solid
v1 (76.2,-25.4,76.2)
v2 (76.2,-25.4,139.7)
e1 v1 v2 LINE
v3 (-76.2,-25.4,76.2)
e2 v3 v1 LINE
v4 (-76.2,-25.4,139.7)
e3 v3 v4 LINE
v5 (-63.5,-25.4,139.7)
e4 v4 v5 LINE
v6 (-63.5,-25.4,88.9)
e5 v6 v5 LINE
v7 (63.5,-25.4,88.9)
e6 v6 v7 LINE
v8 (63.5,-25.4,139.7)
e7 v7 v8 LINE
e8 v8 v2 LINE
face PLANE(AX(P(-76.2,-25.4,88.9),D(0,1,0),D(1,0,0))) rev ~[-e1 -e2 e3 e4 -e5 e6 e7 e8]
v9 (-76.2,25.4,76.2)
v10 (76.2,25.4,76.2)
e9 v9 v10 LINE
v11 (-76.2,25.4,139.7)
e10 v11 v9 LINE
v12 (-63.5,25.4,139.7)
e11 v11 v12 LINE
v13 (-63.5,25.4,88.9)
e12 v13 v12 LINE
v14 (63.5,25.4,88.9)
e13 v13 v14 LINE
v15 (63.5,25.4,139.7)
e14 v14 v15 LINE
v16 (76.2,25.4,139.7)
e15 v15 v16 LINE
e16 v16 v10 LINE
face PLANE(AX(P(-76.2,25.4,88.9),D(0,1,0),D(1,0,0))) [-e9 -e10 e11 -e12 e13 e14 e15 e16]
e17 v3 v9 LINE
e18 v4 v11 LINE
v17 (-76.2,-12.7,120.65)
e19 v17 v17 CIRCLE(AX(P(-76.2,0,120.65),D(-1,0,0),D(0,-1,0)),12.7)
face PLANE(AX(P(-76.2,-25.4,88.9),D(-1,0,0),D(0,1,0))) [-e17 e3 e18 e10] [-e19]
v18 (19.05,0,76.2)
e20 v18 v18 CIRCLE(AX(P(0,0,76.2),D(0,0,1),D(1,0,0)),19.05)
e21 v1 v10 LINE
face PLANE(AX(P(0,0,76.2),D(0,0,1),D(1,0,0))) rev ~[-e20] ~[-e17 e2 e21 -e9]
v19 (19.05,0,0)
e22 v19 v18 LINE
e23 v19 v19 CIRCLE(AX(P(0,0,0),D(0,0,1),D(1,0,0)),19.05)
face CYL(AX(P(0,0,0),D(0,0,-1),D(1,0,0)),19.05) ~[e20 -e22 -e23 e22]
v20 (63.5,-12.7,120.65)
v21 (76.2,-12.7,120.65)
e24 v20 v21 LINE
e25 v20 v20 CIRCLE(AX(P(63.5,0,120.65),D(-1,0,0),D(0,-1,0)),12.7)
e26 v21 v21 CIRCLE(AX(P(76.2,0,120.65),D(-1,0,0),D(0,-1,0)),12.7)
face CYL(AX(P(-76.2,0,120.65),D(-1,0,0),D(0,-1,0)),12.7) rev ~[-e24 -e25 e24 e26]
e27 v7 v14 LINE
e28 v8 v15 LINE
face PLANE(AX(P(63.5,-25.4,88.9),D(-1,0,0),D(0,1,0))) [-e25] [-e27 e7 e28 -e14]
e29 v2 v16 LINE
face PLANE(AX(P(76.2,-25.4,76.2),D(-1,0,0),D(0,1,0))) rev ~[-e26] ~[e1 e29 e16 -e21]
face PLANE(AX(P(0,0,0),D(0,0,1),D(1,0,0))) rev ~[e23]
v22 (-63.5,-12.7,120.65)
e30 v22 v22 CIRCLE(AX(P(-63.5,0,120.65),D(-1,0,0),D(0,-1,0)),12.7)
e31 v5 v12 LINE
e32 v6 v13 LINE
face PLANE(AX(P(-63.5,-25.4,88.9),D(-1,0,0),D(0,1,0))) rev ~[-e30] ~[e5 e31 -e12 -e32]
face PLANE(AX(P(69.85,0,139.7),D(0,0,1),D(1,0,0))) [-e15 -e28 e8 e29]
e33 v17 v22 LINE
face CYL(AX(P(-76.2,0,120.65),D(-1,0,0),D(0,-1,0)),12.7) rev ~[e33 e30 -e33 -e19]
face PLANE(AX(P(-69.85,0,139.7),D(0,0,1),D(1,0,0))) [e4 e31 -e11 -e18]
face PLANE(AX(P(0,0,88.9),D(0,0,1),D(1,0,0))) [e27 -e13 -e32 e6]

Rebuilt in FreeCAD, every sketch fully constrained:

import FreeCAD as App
import Part
import Sketcher
Q = App.Units.Quantity

doc = App.newDocument("Part")
body = doc.addObject("PartDesign::Body", "Body")

# Sketch on XY plane
sketch1 = body.newObject("Sketcher::SketchObject", "Sketch")
sketch1.AttachmentSupport = (doc.getObject("XY_Plane"), [""])
sketch1.MapMode = "FlatFace"
sketch1.addGeometry(Part.Circle(App.Vector(0, 0, 0), App.Vector(0, 0, 1), 19.05), False)
sketch1.addConstraint([
    Sketcher.Constraint("Coincident", 0, 3, -1, 1),
    Sketcher.Constraint("Diameter", 0, Q("1.5 in")),
])
pad1 = body.newObject("PartDesign::Pad", "Pad")
pad1.Profile = sketch1
pad1.Length = Q("3 in")

# Sketch on XY plane
sketch2 = body.newObject("Sketcher::SketchObject", "Sketch001")
sketch2.AttachmentSupport = (doc.getObject("XY_Plane"), [""])
sketch2.MapMode = "FlatFace"
sketch2.AttachmentOffset = App.Placement(App.Vector(0, 0, 3 * 25.4), App.Rotation())
sketch2.addGeometry([
    Part.LineSegment(App.Vector(-76.2, 25.4, 0), App.Vector(-76.2, -25.4, 0)),
    Part.LineSegment(App.Vector(-76.2, -25.4, 0), App.Vector(76.2, -25.4, 0)),
    Part.LineSegment(App.Vector(76.2, -25.4, 0), App.Vector(76.2, 25.4, 0)),
    Part.LineSegment(App.Vector(76.2, 25.4, 0), App.Vector(-76.2, 25.4, 0)),
], False)
sketch2.addConstraint([
    Sketcher.Constraint("Coincident", 0, 2, 1, 1),
    Sketcher.Constraint("Coincident", 1, 2, 2, 1),
    Sketcher.Constraint("Coincident", 2, 2, 3, 1),
    Sketcher.Constraint("Coincident", 3, 2, 0, 1),
    Sketcher.Constraint("Vertical", 0),
    Sketcher.Constraint("Horizontal", 1),
    Sketcher.Constraint("Vertical", 2),
    Sketcher.Constraint("Horizontal", 3),
    Sketcher.Constraint("Symmetric", 0, 2, 2, 2, -1, 1),
    Sketcher.Constraint("DistanceX", 1, 1, 1, 2, Q("6 in")),
    Sketcher.Constraint("DistanceY", 0, 2, 0, 1, Q("2 in")),
])
pad2 = body.newObject("PartDesign::Pad", "Pad001")
pad2.Profile = sketch2
pad2.Length = Q("0.5 in")

# Sketch on XY plane
sketch3 = body.newObject("Sketcher::SketchObject", "Sketch002")
sketch3.AttachmentSupport = (doc.getObject("XY_Plane"), [""])
sketch3.MapMode = "FlatFace"
sketch3.AttachmentOffset = App.Placement(App.Vector(0, 0, 3.5 * 25.4), App.Rotation())
sketch3.addGeometry([
    Part.LineSegment(App.Vector(-76.2, 25.4, 0), App.Vector(-76.2, -25.4, 0)),  # 0
    Part.LineSegment(App.Vector(-76.2, -25.4, 0), App.Vector(-63.5, -25.4, 0)),  # 1
    Part.LineSegment(App.Vector(-63.5, -25.4, 0), App.Vector(-63.5, 25.4, 0)),  # 2
    Part.LineSegment(App.Vector(-63.5, 25.4, 0), App.Vector(-76.2, 25.4, 0)),  # 3
    Part.LineSegment(App.Vector(63.5, 25.4, 0), App.Vector(63.5, -25.4, 0)),  # 4
    Part.LineSegment(App.Vector(63.5, -25.4, 0), App.Vector(76.2, -25.4, 0)),  # 5
    Part.LineSegment(App.Vector(76.2, -25.4, 0), App.Vector(76.2, 25.4, 0)),  # 6
    Part.LineSegment(App.Vector(76.2, 25.4, 0), App.Vector(63.5, 25.4, 0)),  # 7
], False)
sketch3.addConstraint([
    Sketcher.Constraint("Coincident", 0, 2, 1, 1),
    Sketcher.Constraint("Coincident", 1, 2, 2, 1),
    Sketcher.Constraint("Coincident", 2, 2, 3, 1),
    Sketcher.Constraint("Coincident", 3, 2, 0, 1),
    Sketcher.Constraint("Coincident", 4, 2, 5, 1),
    Sketcher.Constraint("Coincident", 5, 2, 6, 1),
    Sketcher.Constraint("Coincident", 6, 2, 7, 1),
    Sketcher.Constraint("Coincident", 7, 2, 4, 1),
    Sketcher.Constraint("Vertical", 0),
    Sketcher.Constraint("Horizontal", 1),
    Sketcher.Constraint("Vertical", 2),
    Sketcher.Constraint("Horizontal", 3),
    Sketcher.Constraint("Vertical", 4),
    Sketcher.Constraint("Horizontal", 5),
    Sketcher.Constraint("Vertical", 6),
    Sketcher.Constraint("Horizontal", 7),
    Sketcher.Constraint("Symmetric", 2, 2, 4, 2, -1, 1),
    Sketcher.Constraint("Symmetric", 0, 2, 6, 2, -1, 1),
    Sketcher.Constraint("Horizontal", 1, 2, 4, 2),
    Sketcher.Constraint("DistanceY", 0, 2, 0, 1, Q("2 in")),
    Sketcher.Constraint("DistanceX", 1, 1, 1, 2, Q("0.5 in")),
    Sketcher.Constraint("DistanceX", 0, 2, -1, 1, Q("3 in")),
])
pad3 = body.newObject("PartDesign::Pad", "Pad002")
pad3.Profile = sketch3
pad3.Length = Q("2 in")

# Sketch on YZ plane
sketch4 = body.newObject("Sketcher::SketchObject", "Sketch003")
sketch4.AttachmentSupport = (doc.getObject("YZ_Plane"), [""])
sketch4.MapMode = "FlatFace"
sketch4.AttachmentOffset = App.Placement(App.Vector(0, 0, -3 * 25.4), App.Rotation())
sketch4.addGeometry(Part.Circle(App.Vector(0, 120.65, 0), App.Vector(0, 0, 1), 12.7), False)
sketch4.addConstraint([
    Sketcher.Constraint("PointOnObject", 0, 3, -2),
    Sketcher.Constraint("Diameter", 0, Q("1 in")),
    Sketcher.Constraint("DistanceY", -1, 1, 0, 3, Q("4.75 in")),
])
pocket1 = body.newObject("PartDesign::Pocket", "Pocket")
pocket1.Profile = sketch4
pocket1.Length = Q("12 in")
pocket1.Reversed = True

doc.recompute()
